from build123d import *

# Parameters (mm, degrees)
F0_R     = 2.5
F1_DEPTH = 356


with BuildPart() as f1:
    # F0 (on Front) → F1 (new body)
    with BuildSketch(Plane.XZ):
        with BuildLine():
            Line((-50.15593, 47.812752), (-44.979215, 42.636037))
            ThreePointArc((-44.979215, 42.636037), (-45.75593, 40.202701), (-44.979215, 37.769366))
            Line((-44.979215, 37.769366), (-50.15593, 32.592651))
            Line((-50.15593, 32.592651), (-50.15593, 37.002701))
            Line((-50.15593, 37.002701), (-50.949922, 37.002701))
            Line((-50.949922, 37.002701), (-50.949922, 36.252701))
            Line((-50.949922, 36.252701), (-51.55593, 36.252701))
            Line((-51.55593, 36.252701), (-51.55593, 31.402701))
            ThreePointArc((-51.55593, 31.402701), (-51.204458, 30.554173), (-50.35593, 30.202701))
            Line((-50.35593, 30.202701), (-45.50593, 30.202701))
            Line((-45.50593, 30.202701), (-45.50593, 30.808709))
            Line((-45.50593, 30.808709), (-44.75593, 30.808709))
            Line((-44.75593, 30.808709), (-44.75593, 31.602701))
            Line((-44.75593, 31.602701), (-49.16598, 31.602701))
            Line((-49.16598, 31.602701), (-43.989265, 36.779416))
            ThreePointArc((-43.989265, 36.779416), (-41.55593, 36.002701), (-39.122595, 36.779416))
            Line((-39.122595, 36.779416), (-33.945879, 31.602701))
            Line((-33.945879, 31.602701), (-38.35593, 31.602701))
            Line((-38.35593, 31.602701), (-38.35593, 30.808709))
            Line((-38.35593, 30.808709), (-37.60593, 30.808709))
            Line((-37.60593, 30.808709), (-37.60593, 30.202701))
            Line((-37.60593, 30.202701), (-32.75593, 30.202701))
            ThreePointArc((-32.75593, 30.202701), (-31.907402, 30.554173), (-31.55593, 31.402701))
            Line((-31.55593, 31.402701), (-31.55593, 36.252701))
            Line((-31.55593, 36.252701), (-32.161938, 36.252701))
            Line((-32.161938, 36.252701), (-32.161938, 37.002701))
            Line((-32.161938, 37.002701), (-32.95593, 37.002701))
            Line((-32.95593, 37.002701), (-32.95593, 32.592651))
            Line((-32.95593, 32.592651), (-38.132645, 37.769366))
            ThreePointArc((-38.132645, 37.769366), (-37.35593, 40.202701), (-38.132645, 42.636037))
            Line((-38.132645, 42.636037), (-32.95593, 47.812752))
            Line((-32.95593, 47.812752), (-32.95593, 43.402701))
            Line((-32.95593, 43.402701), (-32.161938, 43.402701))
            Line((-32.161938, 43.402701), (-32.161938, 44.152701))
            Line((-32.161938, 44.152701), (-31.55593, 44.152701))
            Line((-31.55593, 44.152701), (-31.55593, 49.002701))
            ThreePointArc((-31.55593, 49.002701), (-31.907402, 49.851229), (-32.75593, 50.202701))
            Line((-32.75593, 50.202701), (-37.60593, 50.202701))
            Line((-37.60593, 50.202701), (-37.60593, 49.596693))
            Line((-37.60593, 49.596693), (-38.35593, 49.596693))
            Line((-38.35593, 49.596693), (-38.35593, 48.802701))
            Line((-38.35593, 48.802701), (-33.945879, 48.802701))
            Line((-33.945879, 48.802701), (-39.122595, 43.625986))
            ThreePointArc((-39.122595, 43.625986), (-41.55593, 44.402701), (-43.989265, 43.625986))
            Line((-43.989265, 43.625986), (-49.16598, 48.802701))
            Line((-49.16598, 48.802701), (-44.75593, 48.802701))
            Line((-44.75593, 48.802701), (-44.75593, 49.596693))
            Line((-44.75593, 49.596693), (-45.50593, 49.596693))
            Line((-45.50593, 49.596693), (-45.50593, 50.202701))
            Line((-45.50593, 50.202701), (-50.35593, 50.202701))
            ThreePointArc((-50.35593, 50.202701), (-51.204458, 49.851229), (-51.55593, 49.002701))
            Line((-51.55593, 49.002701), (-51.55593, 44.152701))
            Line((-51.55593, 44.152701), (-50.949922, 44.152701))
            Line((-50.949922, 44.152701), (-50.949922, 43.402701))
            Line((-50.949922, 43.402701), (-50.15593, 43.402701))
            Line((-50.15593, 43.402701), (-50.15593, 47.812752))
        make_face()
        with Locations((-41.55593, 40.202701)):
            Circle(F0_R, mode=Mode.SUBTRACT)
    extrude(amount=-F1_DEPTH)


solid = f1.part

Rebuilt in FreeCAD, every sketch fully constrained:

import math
import FreeCAD as App
import Part
import Sketcher
from FreeCAD import Vector

doc = App.newDocument("Part")
params = doc.addObject("Spreadsheet::Sheet", "Params")
for row, (alias, value) in enumerate([
    ("sketch1_diameter", "5 mm"),
    ("sketch1_radius", "4.200001 mm"),
    ("sketch1_radius2", "1.2 mm"),
    ("sketch1_width", "4.85 mm"),
    ("sketch1_width2", "0.75 mm"),
    ("pad1_length", "356 mm"),
], start=1):
    params.set(f"A{row}", alias)
    params.set(f"B{row}", "=" + value)
    params.setAlias(f"B{row}", alias)

body = doc.addObject("PartDesign::Body", "Body")

sketch1 = doc.addObject("Sketcher::SketchObject", "Sketch")
body.addObject(sketch1)
sketch1.AttachmentSupport = (doc.XZ_Plane, [""])
sketch1.MapMode = "FlatFace"
sketch1.addGeometry(Part.LineSegment(Vector(-50.2, 47.8, 0), Vector(-45, 42.6, 0)), False)
sketch1.addGeometry(Part.ArcOfCircle(Part.Circle(Vector(-41.6, 40.2, 0), Vector(0, 0, 1), 4.2), math.radians(145), math.radians(215)), False)
sketch1.addGeometry(Part.LineSegment(Vector(-45, 37.8, 0), Vector(-50.2, 32.6, 0)), False)
sketch1.addGeometry(Part.LineSegment(Vector(-50.2, 32.6, 0), Vector(-50.2, 37, 0)), False)
sketch1.addGeometry(Part.LineSegment(Vector(-50.2, 37, 0), Vector(-50.9, 37, 0)), False)
sketch1.addGeometry(Part.LineSegment(Vector(-50.9, 37, 0), Vector(-50.9, 36.3, 0)), False)
sketch1.addGeometry(Part.LineSegment(Vector(-50.9, 36.3, 0), Vector(-51.6, 36.3, 0)), False)
sketch1.addGeometry(Part.LineSegment(Vector(-51.6, 36.3, 0), Vector(-51.6, 31.4, 0)), False)
sketch1.addGeometry(Part.ArcOfCircle(Part.Circle(Vector(-50.4, 31.4, 0), Vector(0, 0, 1), 1.2), math.radians(-180), math.radians(-90)), False)
sketch1.addGeometry(Part.LineSegment(Vector(-50.4, 30.2, 0), Vector(-45.5, 30.2, 0)), False)
sketch1.addGeometry(Part.LineSegment(Vector(-45.5, 30.2, 0), Vector(-45.5, 30.8, 0)), False)
sketch1.addGeometry(Part.LineSegment(Vector(-45.5, 30.8, 0), Vector(-44.8, 30.8, 0)), False)
sketch1.addGeometry(Part.LineSegment(Vector(-44.8, 30.8, 0), Vector(-44.8, 31.6, 0)), False)
sketch1.addGeometry(Part.LineSegment(Vector(-44.8, 31.6, 0), Vector(-49.2, 31.6, 0)), False)
sketch1.addGeometry(Part.LineSegment(Vector(-49.2, 31.6, 0), Vector(-44, 36.8, 0)), False)
sketch1.addGeometry(Part.ArcOfCircle(Part.Circle(Vector(-41.6, 40.2, 0), Vector(0, 0, 1), 4.2), math.radians(-125), math.radians(-55)), False)
sketch1.addGeometry(Part.LineSegment(Vector(-39.1, 36.8, 0), Vector(-33.9, 31.6, 0)), False)
sketch1.addGeometry(Part.LineSegment(Vector(-33.9, 31.6, 0), Vector(-38.4, 31.6, 0)), False)
sketch1.addGeometry(Part.LineSegment(Vector(-38.4, 31.6, 0), Vector(-38.4, 30.8, 0)), False)
sketch1.addGeometry(Part.LineSegment(Vector(-38.4, 30.8, 0), Vector(-37.6, 30.8, 0)), False)
sketch1.addGeometry(Part.LineSegment(Vector(-37.6, 30.8, 0), Vector(-37.6, 30.2, 0)), False)
sketch1.addGeometry(Part.LineSegment(Vector(-37.6, 30.2, 0), Vector(-32.8, 30.2, 0)), False)
sketch1.addGeometry(Part.ArcOfCircle(Part.Circle(Vector(-32.8, 31.4, 0), Vector(0, 0, 1), 1.2), math.radians(-90), math.radians(0)), False)
sketch1.addGeometry(Part.LineSegment(Vector(-31.6, 31.4, 0), Vector(-31.6, 36.3, 0)), False)
sketch1.addGeometry(Part.LineSegment(Vector(-31.6, 36.3, 0), Vector(-32.2, 36.3, 0)), False)
sketch1.addGeometry(Part.LineSegment(Vector(-32.2, 36.3, 0), Vector(-32.2, 37, 0)), False)
sketch1.addGeometry(Part.LineSegment(Vector(-32.2, 37, 0), Vector(-33, 37, 0)), False)
sketch1.addGeometry(Part.LineSegment(Vector(-33, 37, 0), Vector(-33, 32.6, 0)), False)
sketch1.addGeometry(Part.LineSegment(Vector(-33, 32.6, 0), Vector(-38.1, 37.8, 0)), False)
sketch1.addGeometry(Part.ArcOfCircle(Part.Circle(Vector(-41.6, 40.2, 0), Vector(0, 0, 1), 4.2), math.radians(-35), math.radians(35)), False)
sketch1.addGeometry(Part.LineSegment(Vector(-38.1, 42.6, 0), Vector(-33, 47.8, 0)), False)
sketch1.addGeometry(Part.LineSegment(Vector(-33, 47.8, 0), Vector(-33, 43.4, 0)), False)
sketch1.addGeometry(Part.LineSegment(Vector(-33, 43.4, 0), Vector(-32.2, 43.4, 0)), False)
sketch1.addGeometry(Part.LineSegment(Vector(-32.2, 43.4, 0), Vector(-32.2, 44.2, 0)), False)
sketch1.addGeometry(Part.LineSegment(Vector(-32.2, 44.2, 0), Vector(-31.6, 44.2, 0)), False)
sketch1.addGeometry(Part.LineSegment(Vector(-31.6, 44.2, 0), Vector(-31.6, 49, 0)), False)
sketch1.addGeometry(Part.ArcOfCircle(Part.Circle(Vector(-32.8, 49, 0), Vector(0, 0, 1), 1.2), math.radians(0), math.radians(90)), False)
sketch1.addGeometry(Part.LineSegment(Vector(-32.8, 50.2, 0), Vector(-37.6, 50.2, 0)), False)
sketch1.addGeometry(Part.LineSegment(Vector(-37.6, 50.2, 0), Vector(-37.6, 49.6, 0)), False)
sketch1.addGeometry(Part.LineSegment(Vector(-37.6, 49.6, 0), Vector(-38.4, 49.6, 0)), False)
sketch1.addGeometry(Part.LineSegment(Vector(-38.4, 49.6, 0), Vector(-38.4, 48.8, 0)), False)
sketch1.addGeometry(Part.LineSegment(Vector(-38.4, 48.8, 0), Vector(-33.9, 48.8, 0)), False)
sketch1.addGeometry(Part.LineSegment(Vector(-33.9, 48.8, 0), Vector(-39.1, 43.6, 0)), False)
sketch1.addGeometry(Part.ArcOfCircle(Part.Circle(Vector(-41.6, 40.2, 0), Vector(0, 0, 1), 4.2), math.radians(55), math.radians(125)), False)
sketch1.addGeometry(Part.LineSegment(Vector(-44, 43.6, 0), Vector(-49.2, 48.8, 0)), False)
sketch1.addGeometry(Part.LineSegment(Vector(-49.2, 48.8, 0), Vector(-44.8, 48.8, 0)), False)
sketch1.addGeometry(Part.LineSegment(Vector(-44.8, 48.8, 0), Vector(-44.8, 49.6, 0)), False)
sketch1.addGeometry(Part.LineSegment(Vector(-44.8, 49.6, 0), Vector(-45.5, 49.6, 0)), False)
sketch1.addGeometry(Part.LineSegment(Vector(-45.5, 49.6, 0), Vector(-45.5, 50.2, 0)), False)
sketch1.addGeometry(Part.LineSegment(Vector(-45.5, 50.2, 0), Vector(-50.4, 50.2, 0)), False)
sketch1.addGeometry(Part.ArcOfCircle(Part.Circle(Vector(-50.4, 49, 0), Vector(0, 0, 1), 1.2), math.radians(90), math.radians(180)), False)
sketch1.addGeometry(Part.LineSegment(Vector(-51.6, 49, 0), Vector(-51.6, 44.2, 0)), False)
sketch1.addGeometry(Part.LineSegment(Vector(-51.6, 44.2, 0), Vector(-50.9, 44.2, 0)), False)
sketch1.addGeometry(Part.LineSegment(Vector(-50.9, 44.2, 0), Vector(-50.9, 43.4, 0)), False)
sketch1.addGeometry(Part.LineSegment(Vector(-50.9, 43.4, 0), Vector(-50.2, 43.4, 0)), False)
sketch1.addGeometry(Part.LineSegment(Vector(-50.2, 43.4, 0), Vector(-50.2, 47.8, 0)), False)
sketch1.addGeometry(Part.Circle(Vector(-41.6, 40.2, 0), Vector(0, 0, 1), 2.5), False)
sketch1.addConstraint(Sketcher.Constraint("Coincident", 0, 2, 1, 1))
sketch1.addConstraint(Sketcher.Constraint("Coincident", 1, 2, 2, 1))
sketch1.addConstraint(Sketcher.Constraint("Coincident", 2, 2, 3, 1))
sketch1.addConstraint(Sketcher.Constraint("Coincident", 3, 2, 4, 1))
sketch1.addConstraint(Sketcher.Constraint("Coincident", 4, 2, 5, 1))
sketch1.addConstraint(Sketcher.Constraint("Coincident", 5, 2, 6, 1))
sketch1.addConstraint(Sketcher.Constraint("Coincident", 6, 2, 7, 1))
sketch1.addConstraint(Sketcher.Constraint("Tangent", 7, 2, 8, 1))
sketch1.addConstraint(Sketcher.Constraint("Tangent", 8, 2, 9, 1))
sketch1.addConstraint(Sketcher.Constraint("Coincident", 9, 2, 10, 1))
sketch1.addConstraint(Sketcher.Constraint("Coincident", 10, 2, 11, 1))
sketch1.addConstraint(Sketcher.Constraint("Coincident", 11, 2, 12, 1))
sketch1.addConstraint(Sketcher.Constraint("Coincident", 12, 2, 13, 1))
sketch1.addConstraint(Sketcher.Constraint("Coincident", 13, 2, 14, 1))
sketch1.addConstraint(Sketcher.Constraint("Coincident", 14, 2, 15, 1))
sketch1.addConstraint(Sketcher.Constraint("Coincident", 15, 2, 16, 1))
sketch1.addConstraint(Sketcher.Constraint("Coincident", 16, 2, 17, 1))
sketch1.addConstraint(Sketcher.Constraint("Coincident", 17, 2, 18, 1))
sketch1.addConstraint(Sketcher.Constraint("Coincident", 18, 2, 19, 1))
sketch1.addConstraint(Sketcher.Constraint("Coincident", 19, 2, 20, 1))
sketch1.addConstraint(Sketcher.Constraint("Coincident", 20, 2, 21, 1))
sketch1.addConstraint(Sketcher.Constraint("Tangent", 21, 2, 22, 1))
sketch1.addConstraint(Sketcher.Constraint("Tangent", 22, 2, 23, 1))
sketch1.addConstraint(Sketcher.Constraint("Coincident", 23, 2, 24, 1))
sketch1.addConstraint(Sketcher.Constraint("Coincident", 24, 2, 25, 1))
sketch1.addConstraint(Sketcher.Constraint("Coincident", 25, 2, 26, 1))
sketch1.addConstraint(Sketcher.Constraint("Coincident", 26, 2, 27, 1))
sketch1.addConstraint(Sketcher.Constraint("Coincident", 27, 2, 28, 1))
sketch1.addConstraint(Sketcher.Constraint("Coincident", 28, 2, 29, 1))
sketch1.addConstraint(Sketcher.Constraint("Coincident", 29, 2, 30, 1))
sketch1.addConstraint(Sketcher.Constraint("Coincident", 30, 2, 31, 1))
sketch1.addConstraint(Sketcher.Constraint("Coincident", 31, 2, 32, 1))
sketch1.addConstraint(Sketcher.Constraint("Coincident", 32, 2, 33, 1))
sketch1.addConstraint(Sketcher.Constraint("Coincident", 33, 2, 34, 1))
sketch1.addConstraint(Sketcher.Constraint("Coincident", 34, 2, 35, 1))
sketch1.addConstraint(Sketcher.Constraint("Tangent", 35, 2, 36, 1))
sketch1.addConstraint(Sketcher.Constraint("Tangent", 36, 2, 37, 1))
sketch1.addConstraint(Sketcher.Constraint("Coincident", 37, 2, 38, 1))
sketch1.addConstraint(Sketcher.Constraint("Coincident", 38, 2, 39, 1))
sketch1.addConstraint(Sketcher.Constraint("Coincident", 39, 2, 40, 1))
sketch1.addConstraint(Sketcher.Constraint("Coincident", 40, 2, 41, 1))
sketch1.addConstraint(Sketcher.Constraint("Coincident", 41, 2, 42, 1))
sketch1.addConstraint(Sketcher.Constraint("Coincident", 42, 2, 43, 1))
sketch1.addConstraint(Sketcher.Constraint("Coincident", 43, 2, 44, 1))
sketch1.addConstraint(Sketcher.Constraint("Coincident", 44, 2, 45, 1))
sketch1.addConstraint(Sketcher.Constraint("Coincident", 45, 2, 46, 1))
sketch1.addConstraint(Sketcher.Constraint("Coincident", 46, 2, 47, 1))
sketch1.addConstraint(Sketcher.Constraint("Coincident", 47, 2, 48, 1))
sketch1.addConstraint(Sketcher.Constraint("Coincident", 48, 2, 49, 1))
sketch1.addConstraint(Sketcher.Constraint("Tangent", 49, 2, 50, 1))
sketch1.addConstraint(Sketcher.Constraint("Tangent", 50, 2, 51, 1))
sketch1.addConstraint(Sketcher.Constraint("Coincident", 51, 2, 52, 1))
sketch1.addConstraint(Sketcher.Constraint("Coincident", 52, 2, 53, 1))
sketch1.addConstraint(Sketcher.Constraint("Coincident", 53, 2, 54, 1))
sketch1.addConstraint(Sketcher.Constraint("Coincident", 54, 2, 55, 1))
sketch1.addConstraint(Sketcher.Constraint("Coincident", 55, 2, 0, 1))
sketch1.addConstraint(Sketcher.Constraint("Vertical", 3))
sketch1.addConstraint(Sketcher.Constraint("Horizontal", 4))
sketch1.addConstraint(Sketcher.Constraint("Vertical", 5))
sketch1.addConstraint(Sketcher.Constraint("Horizontal", 6))
sketch1.addConstraint(Sketcher.Constraint("Vertical", 7))
sketch1.addConstraint(Sketcher.Constraint("Horizontal", 9))
sketch1.addConstraint(Sketcher.Constraint("Vertical", 10))
sketch1.addConstraint(Sketcher.Constraint("Horizontal", 11))
sketch1.addConstraint(Sketcher.Constraint("Vertical", 12))
sketch1.addConstraint(Sketcher.Constraint("Horizontal", 13))
sketch1.addConstraint(Sketcher.Constraint("Horizontal", 17))
sketch1.addConstraint(Sketcher.Constraint("Vertical", 18))
sketch1.addConstraint(Sketcher.Constraint("Horizontal", 19))
sketch1.addConstraint(Sketcher.Constraint("Vertical", 20))
sketch1.addConstraint(Sketcher.Constraint("Horizontal", 21))
sketch1.addConstraint(Sketcher.Constraint("Vertical", 23))
sketch1.addConstraint(Sketcher.Constraint("Horizontal", 24))
sketch1.addConstraint(Sketcher.Constraint("Vertical", 25))
sketch1.addConstraint(Sketcher.Constraint("Horizontal", 26))
sketch1.addConstraint(Sketcher.Constraint("Vertical", 27))
sketch1.addConstraint(Sketcher.Constraint("Vertical", 31))
sketch1.addConstraint(Sketcher.Constraint("Horizontal", 32))
sketch1.addConstraint(Sketcher.Constraint("Vertical", 33))
sketch1.addConstraint(Sketcher.Constraint("Horizontal", 34))
sketch1.addConstraint(Sketcher.Constraint("Vertical", 35))
sketch1.addConstraint(Sketcher.Constraint("Horizontal", 37))
sketch1.addConstraint(Sketcher.Constraint("Vertical", 38))
sketch1.addConstraint(Sketcher.Constraint("Horizontal", 39))
sketch1.addConstraint(Sketcher.Constraint("Vertical", 40))
sketch1.addConstraint(Sketcher.Constraint("Horizontal", 41))
sketch1.addConstraint(Sketcher.Constraint("Horizontal", 45))
sketch1.addConstraint(Sketcher.Constraint("Vertical", 46))
sketch1.addConstraint(Sketcher.Constraint("Horizontal", 47))
sketch1.addConstraint(Sketcher.Constraint("Vertical", 48))
sketch1.addConstraint(Sketcher.Constraint("Horizontal", 49))
sketch1.addConstraint(Sketcher.Constraint("Vertical", 51))
sketch1.addConstraint(Sketcher.Constraint("Horizontal", 52))
sketch1.addConstraint(Sketcher.Constraint("Vertical", 53))
sketch1.addConstraint(Sketcher.Constraint("Horizontal", 54))
sketch1.addConstraint(Sketcher.Constraint("Vertical", 55))
sketch1.addConstraint(Sketcher.Constraint("Coincident", 15, 3, 1, 3))
sketch1.addConstraint(Sketcher.Constraint("Coincident", 29, 3, 1, 3))
sketch1.addConstraint(Sketcher.Constraint("Coincident", 43, 3, 1, 3))
sketch1.addConstraint(Sketcher.Constraint("Coincident", 56, 3, 1, 3))
sketch1.addConstraint(Sketcher.Constraint("Equal", 1, 15))
sketch1.addConstraint(Sketcher.Constraint("Equal", 8, 22))
sketch1.addConstraint(Sketcher.Constraint("Equal", 15, 29))
sketch1.addConstraint(Sketcher.Constraint("Equal", 22, 36))
sketch1.addConstraint(Sketcher.Constraint("Equal", 29, 43))
sketch1.addConstraint(Sketcher.Constraint("Equal", 36, 50))
sketch1.addConstraint(Sketcher.Constraint("Perpendicular", 0, 2))
sketch1.addConstraint(Sketcher.Constraint("Parallel", 2, 14))
sketch1.addConstraint(Sketcher.Constraint("Perpendicular", 14, 16))
sketch1.addConstraint(Sketcher.Constraint("Parallel", 16, 28))
sketch1.addConstraint(Sketcher.Constraint("Perpendicular", 28, 30))
sketch1.addConstraint(Sketcher.Constraint("Parallel", 30, 42))
sketch1.addConstraint(Sketcher.Constraint("Perpendicular", 42, 44))
sketch1.addConstraint(Sketcher.Constraint("Horizontal", 8, 3, 22, 3))
sketch1.addConstraint(Sketcher.Constraint("Horizontal", 36, 3, 50, 3))
sketch1.addConstraint(Sketcher.Constraint("Horizontal", 14, 2, 15, 2))
sketch1.addConstraint(Sketcher.Constraint("Horizontal", 13, 2, 16, 2))
sketch1.addConstraint(Sketcher.Constraint("Horizontal", 11, 2, 18, 2))
sketch1.addConstraint(Sketcher.Constraint("Horizontal", 6, 2, 23, 2))
sketch1.addConstraint(Sketcher.Constraint("Horizontal", 4, 2, 25, 2))
sketch1.addConstraint(Sketcher.Constraint("Horizontal", 2, 2, 27, 2))
sketch1.addConstraint(Sketcher.Constraint("Horizontal", 1, 2, 28, 2))
sketch1.addConstraint(Sketcher.Constraint("Horizontal", 0, 2, 29, 2))
sketch1.addConstraint(Sketcher.Constraint("Horizontal", 42, 2, 43, 2))
sketch1.addConstraint(Sketcher.Constraint("Horizontal", 41, 2, 44, 2))
sketch1.addConstraint(Sketcher.Constraint("Horizontal", 39, 2, 46, 2))
sketch1.addConstraint(Sketcher.Constraint("Horizontal", 34, 2, 51, 2))
sketch1.addConstraint(Sketcher.Constraint("Horizontal", 32, 2, 53, 2))
sketch1.addConstraint(Sketcher.Constraint("Horizontal", 30, 2, 55, 2))
sketch1.addConstraint(Sketcher.Constraint("Vertical", 22, 3, 36, 3))
sketch1.addConstraint(Sketcher.Constraint("Vertical", 8, 3, 50, 3))
sketch1.addConstraint(Sketcher.Constraint("Vertical", 0, 2, 1, 2))
sketch1.addConstraint(Sketcher.Constraint("Vertical", 27, 2, 30, 2))
sketch1.addConstraint(Sketcher.Constraint("Vertical", 25, 2, 32, 2))
sketch1.addConstraint(Sketcher.Constraint("Vertical", 20, 2, 37, 2))
sketch1.addConstraint(Sketcher.Constraint("Vertical", 18, 2, 39, 2))
sketch1.addConstraint(Sketcher.Constraint("Vertical", 16, 2, 41, 2))
sketch1.addConstraint(Sketcher.Constraint("Vertical", 15, 2, 42, 2))
sketch1.addConstraint(Sketcher.Constraint("Vertical", 13, 2, 44, 2))
sketch1.addConstraint(Sketcher.Constraint("Vertical", 12, 2, 45, 2))
sketch1.addConstraint(Sketcher.Constraint("Vertical", 10, 2, 47, 2))
sketch1.addConstraint(Sketcher.Constraint("Vertical", 5, 2, 52, 2))
sketch1.addConstraint(Sketcher.Constraint("Equal", 13, 17))
sketch1.addConstraint(Sketcher.Constraint("Equal", 11, 19))
sketch1.addConstraint(Sketcher.Constraint("Equal", 9, 21))
sketch1.addConstraint(Sketcher.Constraint("Equal", 6, 24))
sketch1.addConstraint(Sketcher.Constraint("Equal", 45, 3))
sketch1.addConstraint(Sketcher.Constraint("Equal", 47, 5))
sketch1.addConstraint(Sketcher.Constraint("Equal", 49, 7))
sketch1.addConstraint(Sketcher.Constraint("Equal", 52, 10))
sketch1.addConstraint(Sketcher.Constraint("Equal", 54, 12))
sketch1.addConstraint(Sketcher.Constraint("Equal", 27, 31))
sketch1.addConstraint(Sketcher.Constraint("Equal", 25, 33))
sketch1.addConstraint(Sketcher.Constraint("Equal", 23, 35))
sketch1.addConstraint(Sketcher.Constraint("Equal", 20, 38))
sketch1.addConstraint(Sketcher.Constraint("Equal", 2, 14))
sketch1.addConstraint(Sketcher.Constraint("Diameter", 56, 5.0))
sketch1.addConstraint(Sketcher.Constraint("Radius", 1, 4.200001))
sketch1.addConstraint(Sketcher.Constraint("Radius", 8, 1.2))
sketch1.addConstraint(Sketcher.Constraint("DistanceX", 9, 1, 9, 2, 4.85))
sketch1.addConstraint(Sketcher.Constraint("DistanceX", 11, 1, 11, 2, 0.75))
sketch1.addConstraint(Sketcher.Constraint("DistanceX", 13, 2, 13, 1, 4.41005))
sketch1.addConstraint(Sketcher.Constraint("DistanceY", 12, 1, 12, 2, 0.793992))
sketch1.addConstraint(Sketcher.Constraint("DistanceY", -1, 1, 1, 3, 40.202702))
sketch1.addConstraint(Sketcher.Constraint("DistanceY", -1, 1, 8, 3, 31.402701))
sketch1.addConstraint(Sketcher.Constraint("DistanceY", -1, 1, 12, 2, 31.602701))
sketch1.addConstraint(Sketcher.Constraint("DistanceX", 1, 3, -1, 1, 41.555929))
sketch1.setExpression("Constraints[156]", "Params.sketch1_diameter")
sketch1.setExpression("Constraints[157]", "Params.sketch1_radius")
sketch1.setExpression("Constraints[158]", "Params.sketch1_radius2")
sketch1.setExpression("Constraints[159]", "Params.sketch1_width")
sketch1.setExpression("Constraints[160]", "Params.sketch1_width2")
pad1 = doc.addObject("PartDesign::Pad", "Pad")
body.addObject(pad1)
pad1.Profile = sketch1
pad1.setExpression("Length", "Params.pad1_length")
pad1.Reversed = True

doc.recompute()
